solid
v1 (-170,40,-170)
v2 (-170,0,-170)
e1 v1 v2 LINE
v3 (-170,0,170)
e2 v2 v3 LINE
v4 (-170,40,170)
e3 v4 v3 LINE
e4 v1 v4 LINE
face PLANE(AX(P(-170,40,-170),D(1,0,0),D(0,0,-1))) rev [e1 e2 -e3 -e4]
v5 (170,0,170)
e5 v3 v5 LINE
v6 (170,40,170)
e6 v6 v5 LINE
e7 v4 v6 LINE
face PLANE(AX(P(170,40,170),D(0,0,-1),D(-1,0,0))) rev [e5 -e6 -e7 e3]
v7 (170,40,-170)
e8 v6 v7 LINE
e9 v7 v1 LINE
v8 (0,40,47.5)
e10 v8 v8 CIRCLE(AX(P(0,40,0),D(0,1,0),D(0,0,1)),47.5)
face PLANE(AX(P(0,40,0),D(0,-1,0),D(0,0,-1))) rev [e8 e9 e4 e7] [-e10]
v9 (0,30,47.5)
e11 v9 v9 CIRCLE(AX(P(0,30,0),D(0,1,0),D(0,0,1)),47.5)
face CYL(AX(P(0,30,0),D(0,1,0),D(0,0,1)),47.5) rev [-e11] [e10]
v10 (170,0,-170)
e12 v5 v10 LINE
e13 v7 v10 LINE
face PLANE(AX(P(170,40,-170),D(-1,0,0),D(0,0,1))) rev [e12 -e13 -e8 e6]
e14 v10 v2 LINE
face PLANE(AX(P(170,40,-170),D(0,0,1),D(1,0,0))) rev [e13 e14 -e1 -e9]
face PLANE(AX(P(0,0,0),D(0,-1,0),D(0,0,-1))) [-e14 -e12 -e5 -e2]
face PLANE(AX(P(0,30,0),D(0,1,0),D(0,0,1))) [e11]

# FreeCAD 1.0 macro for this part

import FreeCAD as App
import Part
import Sketcher
Q = App.Units.Quantity

doc = App.newDocument("Part")
body = doc.addObject("PartDesign::Body", "Body")

sketch1 = doc.addObject("Sketcher::SketchObject", "Sketch")
body.addObject(sketch1)
sketch1.AttachmentSupport = (doc.XZ_Plane, [""])
sketch1.MapMode = "FlatFace"
sketch1.addGeometry([
    Part.LineSegment(App.Vector(-170, -170, 0), App.Vector(-170, 170, 0)),
    Part.LineSegment(App.Vector(-170, 170, 0), App.Vector(170, 170, 0)),
    Part.LineSegment(App.Vector(170, 170, 0), App.Vector(170, -170, 0)),
    Part.LineSegment(App.Vector(170, -170, 0), App.Vector(-170, -170, 0)),
], False)
sketch1.addConstraint([
    Sketcher.Constraint("Coincident", 0, 2, 1, 1),
    Sketcher.Constraint("Coincident", 1, 2, 2, 1),
    Sketcher.Constraint("Coincident", 2, 2, 3, 1),
    Sketcher.Constraint("Coincident", 3, 2, 0, 1),
    Sketcher.Constraint("Vertical", 0),
    Sketcher.Constraint("Horizontal", 1),
    Sketcher.Constraint("Vertical", 2),
    Sketcher.Constraint("Horizontal", 3),
    Sketcher.Constraint("Symmetric", 0, 2, 2, 2, -1, 1),
    Sketcher.Constraint("Equal", 3, 0),
    Sketcher.Constraint("DistanceX", 1, 1, 1, 2, Q("340 mm")),
])
pad1 = doc.addObject("PartDesign::Pad", "Pad")
body.addObject(pad1)
pad1.Profile = sketch1
pad1.Length = 40
pad1.Reversed = True

sketch2 = doc.addObject("Sketcher::SketchObject", "Sketch001")
body.addObject(sketch2)
sketch2.AttachmentSupport = (doc.XZ_Plane, [""])
sketch2.MapMode = "FlatFace"
sketch2.AttachmentOffset = App.Placement(App.Vector(0, 0, -40), App.Rotation())
sketch2.addGeometry(Part.Circle(App.Vector(0, 0, 0), App.Vector(0, 0, 1), 48), False)
sketch2.addConstraint([
    Sketcher.Constraint("Coincident", 0, 3, -1, 1),
    Sketcher.Constraint("Diameter", 0, Q("95 mm")),
])
pocket1 = doc.addObject("PartDesign::Pocket", "Pocket")
body.addObject(pocket1)
pocket1.Profile = sketch2
pocket1.Length = 10
pocket1.Reversed = True

doc.recompute()
